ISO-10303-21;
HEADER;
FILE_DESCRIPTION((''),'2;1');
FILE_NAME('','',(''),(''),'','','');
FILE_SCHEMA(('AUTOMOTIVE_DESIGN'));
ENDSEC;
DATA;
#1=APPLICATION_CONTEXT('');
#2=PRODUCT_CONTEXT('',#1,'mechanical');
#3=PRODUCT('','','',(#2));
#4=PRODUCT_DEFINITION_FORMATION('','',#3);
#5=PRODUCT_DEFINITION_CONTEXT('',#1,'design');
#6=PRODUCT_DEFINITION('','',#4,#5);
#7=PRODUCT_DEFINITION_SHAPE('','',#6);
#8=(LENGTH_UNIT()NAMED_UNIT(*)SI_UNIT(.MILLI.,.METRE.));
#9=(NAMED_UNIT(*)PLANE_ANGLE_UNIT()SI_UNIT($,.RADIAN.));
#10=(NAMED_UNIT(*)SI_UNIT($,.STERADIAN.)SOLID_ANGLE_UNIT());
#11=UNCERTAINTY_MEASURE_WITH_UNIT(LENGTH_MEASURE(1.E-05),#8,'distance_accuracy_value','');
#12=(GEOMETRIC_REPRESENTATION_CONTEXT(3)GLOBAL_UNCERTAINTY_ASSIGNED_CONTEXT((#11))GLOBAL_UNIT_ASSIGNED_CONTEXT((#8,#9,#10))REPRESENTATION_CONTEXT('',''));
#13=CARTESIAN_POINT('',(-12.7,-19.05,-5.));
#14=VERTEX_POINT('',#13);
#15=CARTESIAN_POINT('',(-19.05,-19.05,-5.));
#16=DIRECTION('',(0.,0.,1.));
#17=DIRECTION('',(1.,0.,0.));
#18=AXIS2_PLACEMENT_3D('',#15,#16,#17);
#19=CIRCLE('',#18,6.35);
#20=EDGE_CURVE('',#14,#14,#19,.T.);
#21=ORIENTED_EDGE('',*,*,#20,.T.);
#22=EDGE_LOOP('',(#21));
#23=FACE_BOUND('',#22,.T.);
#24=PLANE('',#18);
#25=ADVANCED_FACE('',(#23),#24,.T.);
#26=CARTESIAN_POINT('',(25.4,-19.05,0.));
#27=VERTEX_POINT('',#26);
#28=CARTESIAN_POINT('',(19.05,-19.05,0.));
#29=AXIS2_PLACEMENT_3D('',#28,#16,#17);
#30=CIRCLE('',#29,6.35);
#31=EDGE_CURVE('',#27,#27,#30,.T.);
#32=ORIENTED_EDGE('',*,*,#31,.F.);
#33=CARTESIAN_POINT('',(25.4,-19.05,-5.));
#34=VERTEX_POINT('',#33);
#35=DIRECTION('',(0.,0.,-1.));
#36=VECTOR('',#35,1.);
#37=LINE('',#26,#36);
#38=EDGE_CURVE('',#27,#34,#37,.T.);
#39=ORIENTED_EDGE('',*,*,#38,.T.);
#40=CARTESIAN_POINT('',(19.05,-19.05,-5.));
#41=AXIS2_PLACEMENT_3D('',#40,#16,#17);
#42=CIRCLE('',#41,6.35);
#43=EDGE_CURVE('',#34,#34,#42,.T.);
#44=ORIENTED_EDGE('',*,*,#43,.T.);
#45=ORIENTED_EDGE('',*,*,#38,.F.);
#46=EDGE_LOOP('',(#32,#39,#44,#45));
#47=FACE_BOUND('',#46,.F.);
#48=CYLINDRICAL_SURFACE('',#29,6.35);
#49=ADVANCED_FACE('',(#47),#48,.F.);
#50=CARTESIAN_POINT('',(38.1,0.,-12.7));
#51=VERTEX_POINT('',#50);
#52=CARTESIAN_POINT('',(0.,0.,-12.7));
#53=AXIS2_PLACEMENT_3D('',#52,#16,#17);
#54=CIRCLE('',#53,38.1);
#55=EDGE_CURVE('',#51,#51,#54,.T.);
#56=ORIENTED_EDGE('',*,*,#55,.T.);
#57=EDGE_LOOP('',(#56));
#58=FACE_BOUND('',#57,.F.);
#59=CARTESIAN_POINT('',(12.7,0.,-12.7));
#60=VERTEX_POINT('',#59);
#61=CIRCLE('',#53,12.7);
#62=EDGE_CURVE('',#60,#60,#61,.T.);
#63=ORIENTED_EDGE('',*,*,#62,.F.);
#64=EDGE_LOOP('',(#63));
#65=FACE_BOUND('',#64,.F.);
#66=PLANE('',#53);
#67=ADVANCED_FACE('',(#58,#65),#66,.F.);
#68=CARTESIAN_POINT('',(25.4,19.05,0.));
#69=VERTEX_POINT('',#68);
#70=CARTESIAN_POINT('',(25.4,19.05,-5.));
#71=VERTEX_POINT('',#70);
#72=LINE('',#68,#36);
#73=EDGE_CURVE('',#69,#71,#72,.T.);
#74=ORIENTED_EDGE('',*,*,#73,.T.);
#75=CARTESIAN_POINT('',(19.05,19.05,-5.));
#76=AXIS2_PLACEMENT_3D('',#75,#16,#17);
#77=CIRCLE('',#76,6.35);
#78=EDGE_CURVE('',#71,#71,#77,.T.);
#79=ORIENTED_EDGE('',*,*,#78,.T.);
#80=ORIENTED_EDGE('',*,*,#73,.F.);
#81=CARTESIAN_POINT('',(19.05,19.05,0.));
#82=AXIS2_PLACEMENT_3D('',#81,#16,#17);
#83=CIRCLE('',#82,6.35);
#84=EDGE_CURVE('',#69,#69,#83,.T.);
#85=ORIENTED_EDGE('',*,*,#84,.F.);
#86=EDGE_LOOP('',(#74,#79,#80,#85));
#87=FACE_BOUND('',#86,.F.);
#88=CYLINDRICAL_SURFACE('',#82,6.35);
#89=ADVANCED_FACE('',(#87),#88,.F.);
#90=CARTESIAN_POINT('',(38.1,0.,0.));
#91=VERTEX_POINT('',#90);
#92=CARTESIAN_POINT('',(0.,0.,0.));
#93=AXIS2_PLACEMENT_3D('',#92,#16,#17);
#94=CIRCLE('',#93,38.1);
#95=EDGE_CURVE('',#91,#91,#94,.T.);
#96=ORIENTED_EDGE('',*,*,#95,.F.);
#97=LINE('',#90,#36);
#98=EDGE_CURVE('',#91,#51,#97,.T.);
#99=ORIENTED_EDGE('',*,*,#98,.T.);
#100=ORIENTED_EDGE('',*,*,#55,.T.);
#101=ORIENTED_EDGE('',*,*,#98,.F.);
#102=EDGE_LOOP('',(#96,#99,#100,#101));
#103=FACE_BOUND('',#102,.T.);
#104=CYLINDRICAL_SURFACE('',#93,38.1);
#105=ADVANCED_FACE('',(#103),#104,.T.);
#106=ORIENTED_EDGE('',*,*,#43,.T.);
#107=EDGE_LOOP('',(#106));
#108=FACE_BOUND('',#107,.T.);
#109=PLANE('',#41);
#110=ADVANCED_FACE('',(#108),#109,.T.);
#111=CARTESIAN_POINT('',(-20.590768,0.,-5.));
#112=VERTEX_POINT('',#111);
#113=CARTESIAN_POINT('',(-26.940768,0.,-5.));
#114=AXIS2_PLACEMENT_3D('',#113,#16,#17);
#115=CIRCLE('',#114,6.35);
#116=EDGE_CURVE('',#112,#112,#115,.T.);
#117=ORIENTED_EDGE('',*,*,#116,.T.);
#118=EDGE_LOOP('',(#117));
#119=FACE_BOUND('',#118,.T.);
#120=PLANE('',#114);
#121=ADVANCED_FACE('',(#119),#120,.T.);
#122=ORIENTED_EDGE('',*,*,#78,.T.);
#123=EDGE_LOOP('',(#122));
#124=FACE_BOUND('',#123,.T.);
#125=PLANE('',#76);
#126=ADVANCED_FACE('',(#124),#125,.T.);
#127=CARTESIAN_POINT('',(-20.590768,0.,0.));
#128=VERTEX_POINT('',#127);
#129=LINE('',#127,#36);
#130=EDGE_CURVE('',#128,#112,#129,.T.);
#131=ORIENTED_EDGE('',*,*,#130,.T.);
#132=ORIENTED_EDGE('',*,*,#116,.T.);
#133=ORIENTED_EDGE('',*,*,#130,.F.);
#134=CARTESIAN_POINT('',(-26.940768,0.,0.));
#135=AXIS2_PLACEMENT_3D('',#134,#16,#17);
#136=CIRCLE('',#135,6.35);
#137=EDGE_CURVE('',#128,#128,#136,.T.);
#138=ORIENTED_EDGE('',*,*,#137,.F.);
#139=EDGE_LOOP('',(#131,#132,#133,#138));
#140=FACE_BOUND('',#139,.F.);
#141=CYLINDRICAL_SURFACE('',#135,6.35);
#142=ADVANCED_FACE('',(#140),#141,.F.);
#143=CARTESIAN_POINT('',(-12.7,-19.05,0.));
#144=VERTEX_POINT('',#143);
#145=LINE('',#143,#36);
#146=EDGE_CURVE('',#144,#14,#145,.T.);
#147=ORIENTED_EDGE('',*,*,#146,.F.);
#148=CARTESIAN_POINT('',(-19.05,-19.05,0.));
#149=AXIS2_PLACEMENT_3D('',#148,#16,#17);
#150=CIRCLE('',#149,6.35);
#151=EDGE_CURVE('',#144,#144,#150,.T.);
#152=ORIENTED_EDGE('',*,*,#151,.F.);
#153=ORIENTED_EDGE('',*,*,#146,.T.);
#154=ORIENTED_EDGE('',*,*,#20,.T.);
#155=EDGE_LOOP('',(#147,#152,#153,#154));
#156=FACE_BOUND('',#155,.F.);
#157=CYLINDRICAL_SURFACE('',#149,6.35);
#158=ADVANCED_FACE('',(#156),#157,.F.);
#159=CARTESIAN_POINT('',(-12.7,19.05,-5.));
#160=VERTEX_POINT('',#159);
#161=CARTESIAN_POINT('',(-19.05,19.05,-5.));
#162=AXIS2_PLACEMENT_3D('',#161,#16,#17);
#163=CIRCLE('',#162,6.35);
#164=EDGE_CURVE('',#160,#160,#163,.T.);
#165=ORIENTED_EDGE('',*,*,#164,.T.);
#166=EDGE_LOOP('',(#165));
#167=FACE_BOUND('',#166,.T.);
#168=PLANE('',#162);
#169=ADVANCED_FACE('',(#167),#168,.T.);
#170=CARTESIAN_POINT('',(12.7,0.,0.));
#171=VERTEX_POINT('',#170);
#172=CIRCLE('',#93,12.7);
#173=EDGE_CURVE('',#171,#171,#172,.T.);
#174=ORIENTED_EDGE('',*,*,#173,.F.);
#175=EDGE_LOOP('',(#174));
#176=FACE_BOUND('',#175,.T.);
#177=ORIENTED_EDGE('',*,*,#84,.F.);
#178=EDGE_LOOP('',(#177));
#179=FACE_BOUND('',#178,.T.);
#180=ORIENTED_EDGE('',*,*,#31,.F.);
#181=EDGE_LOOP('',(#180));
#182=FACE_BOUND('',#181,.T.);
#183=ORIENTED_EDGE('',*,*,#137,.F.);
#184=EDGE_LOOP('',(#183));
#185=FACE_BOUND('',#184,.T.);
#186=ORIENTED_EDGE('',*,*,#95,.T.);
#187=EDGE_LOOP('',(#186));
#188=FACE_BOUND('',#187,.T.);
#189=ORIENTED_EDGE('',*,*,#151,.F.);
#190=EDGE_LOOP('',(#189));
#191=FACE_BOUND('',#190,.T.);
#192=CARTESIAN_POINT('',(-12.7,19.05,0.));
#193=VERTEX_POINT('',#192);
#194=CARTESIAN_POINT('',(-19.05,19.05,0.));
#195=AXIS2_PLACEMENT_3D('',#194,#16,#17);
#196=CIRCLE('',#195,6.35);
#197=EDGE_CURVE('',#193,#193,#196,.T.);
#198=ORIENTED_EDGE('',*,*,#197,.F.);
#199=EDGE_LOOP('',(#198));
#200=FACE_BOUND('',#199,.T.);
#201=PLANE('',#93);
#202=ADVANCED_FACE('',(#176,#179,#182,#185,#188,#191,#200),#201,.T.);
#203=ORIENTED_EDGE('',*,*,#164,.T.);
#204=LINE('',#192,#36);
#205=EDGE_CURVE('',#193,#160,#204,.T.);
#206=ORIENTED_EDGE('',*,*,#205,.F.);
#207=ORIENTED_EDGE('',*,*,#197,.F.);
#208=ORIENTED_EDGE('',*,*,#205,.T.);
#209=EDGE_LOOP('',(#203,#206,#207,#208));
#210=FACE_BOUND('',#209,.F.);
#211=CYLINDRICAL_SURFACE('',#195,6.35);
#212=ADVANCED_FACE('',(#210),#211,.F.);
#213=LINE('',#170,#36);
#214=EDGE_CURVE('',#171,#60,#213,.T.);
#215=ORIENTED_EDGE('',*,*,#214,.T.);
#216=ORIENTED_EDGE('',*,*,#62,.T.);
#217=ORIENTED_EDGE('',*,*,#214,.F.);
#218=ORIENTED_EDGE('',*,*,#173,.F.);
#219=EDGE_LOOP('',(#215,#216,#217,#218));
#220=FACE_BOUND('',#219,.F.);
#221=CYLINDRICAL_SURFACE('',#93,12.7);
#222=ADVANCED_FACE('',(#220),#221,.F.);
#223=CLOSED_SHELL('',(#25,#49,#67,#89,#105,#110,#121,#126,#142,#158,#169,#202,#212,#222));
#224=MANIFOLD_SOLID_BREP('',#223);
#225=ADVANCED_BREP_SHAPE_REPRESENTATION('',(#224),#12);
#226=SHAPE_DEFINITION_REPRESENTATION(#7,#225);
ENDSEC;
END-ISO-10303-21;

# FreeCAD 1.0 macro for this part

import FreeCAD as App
import Part
import Sketcher
from FreeCAD import Vector
Q = App.Units.Quantity

doc = App.newDocument("Part")
body = doc.addObject("PartDesign::Body", "Body")

# Sketch on XY plane
sketch1 = body.newObject("Sketcher::SketchObject", "Sketch")
sketch1.AttachmentSupport = (doc.getObject("XY_Plane"), [""])
sketch1.MapMode = "FlatFace"
sketch1.addGeometry(Part.Circle(Vector(0, 0, 0), Vector(0, 0, 1), 38), False)
sketch1.addConstraint([
    Sketcher.Constraint("Coincident", 0, 3, -1, 1),
    Sketcher.Constraint("Diameter", 0, Q("3 in")),
])
pad1 = body.newObject("PartDesign::Pad", "Pad")
pad1.Profile = sketch1
pad1.Length = Q("0.5 in")
pad1.Reversed = True

# Sketch on XY plane
sketch2 = body.newObject("Sketcher::SketchObject", "Sketch001")
sketch2.AttachmentSupport = (doc.getObject("XY_Plane"), [""])
sketch2.MapMode = "FlatFace"
sketch2.addGeometry([
    Part.Circle(Vector(-19, 19, 0), Vector(0, 0, 1), 6),  # 0
    Part.Circle(Vector(-19, -19, 0), Vector(0, 0, 1), 6),  # 1
    Part.Circle(Vector(19, -19, 0), Vector(0, 0, 1), 6),  # 2
    Part.Circle(Vector(19, 19, 0), Vector(0, 0, 1), 6),  # 3
    Part.Circle(Vector(-27, 0, 0), Vector(0, 0, 1), 6),  # 4
], False)
sketch2.addConstraint([
    Sketcher.Constraint("Equal", 0, 1),
    Sketcher.Constraint("Equal", 1, 2),
    Sketcher.Constraint("Equal", 2, 3),
    Sketcher.Constraint("Equal", 3, 4),
    Sketcher.Constraint("Symmetric", 0, 3, 2, 3, -1, 1),
    Sketcher.Constraint("Symmetric", 1, 3, 3, 3, -1, 1),
    Sketcher.Constraint("Symmetric", 1, 3, 2, 3, -2),
    Sketcher.Constraint("PointOnObject", 4, 3, -1),
    Sketcher.Constraint("Diameter", 0, Q("0.5 in")),
    Sketcher.Constraint("DistanceY", 1, 3, 0, 3, Q("1.5 in")),
    Sketcher.Constraint("DistanceX", 1, 3, 2, 3, Q("1.5 in")),
    Sketcher.Constraint("DistanceX", 4, 3, 2, 3, 45.990768),
])
pocket1 = body.newObject("PartDesign::Pocket", "Pocket")
pocket1.Profile = sketch2
pocket1.Length = 5

# Sketch on XY plane
sketch3 = body.newObject("Sketcher::SketchObject", "Sketch002")
sketch3.AttachmentSupport = (doc.getObject("XY_Plane"), [""])
sketch3.MapMode = "FlatFace"
sketch3.addGeometry(Part.Circle(Vector(0, 0, 0), Vector(0, 0, 1), 13), False)
sketch3.addConstraint([
    Sketcher.Constraint("Coincident", 0, 3, -1, 1),
    Sketcher.Constraint("Diameter", 0, Q("1 in")),
])
pocket2 = body.newObject("PartDesign::Pocket", "Pocket001")
pocket2.Profile = sketch3
pocket2.Type = "ThroughAll"

doc.recompute()
